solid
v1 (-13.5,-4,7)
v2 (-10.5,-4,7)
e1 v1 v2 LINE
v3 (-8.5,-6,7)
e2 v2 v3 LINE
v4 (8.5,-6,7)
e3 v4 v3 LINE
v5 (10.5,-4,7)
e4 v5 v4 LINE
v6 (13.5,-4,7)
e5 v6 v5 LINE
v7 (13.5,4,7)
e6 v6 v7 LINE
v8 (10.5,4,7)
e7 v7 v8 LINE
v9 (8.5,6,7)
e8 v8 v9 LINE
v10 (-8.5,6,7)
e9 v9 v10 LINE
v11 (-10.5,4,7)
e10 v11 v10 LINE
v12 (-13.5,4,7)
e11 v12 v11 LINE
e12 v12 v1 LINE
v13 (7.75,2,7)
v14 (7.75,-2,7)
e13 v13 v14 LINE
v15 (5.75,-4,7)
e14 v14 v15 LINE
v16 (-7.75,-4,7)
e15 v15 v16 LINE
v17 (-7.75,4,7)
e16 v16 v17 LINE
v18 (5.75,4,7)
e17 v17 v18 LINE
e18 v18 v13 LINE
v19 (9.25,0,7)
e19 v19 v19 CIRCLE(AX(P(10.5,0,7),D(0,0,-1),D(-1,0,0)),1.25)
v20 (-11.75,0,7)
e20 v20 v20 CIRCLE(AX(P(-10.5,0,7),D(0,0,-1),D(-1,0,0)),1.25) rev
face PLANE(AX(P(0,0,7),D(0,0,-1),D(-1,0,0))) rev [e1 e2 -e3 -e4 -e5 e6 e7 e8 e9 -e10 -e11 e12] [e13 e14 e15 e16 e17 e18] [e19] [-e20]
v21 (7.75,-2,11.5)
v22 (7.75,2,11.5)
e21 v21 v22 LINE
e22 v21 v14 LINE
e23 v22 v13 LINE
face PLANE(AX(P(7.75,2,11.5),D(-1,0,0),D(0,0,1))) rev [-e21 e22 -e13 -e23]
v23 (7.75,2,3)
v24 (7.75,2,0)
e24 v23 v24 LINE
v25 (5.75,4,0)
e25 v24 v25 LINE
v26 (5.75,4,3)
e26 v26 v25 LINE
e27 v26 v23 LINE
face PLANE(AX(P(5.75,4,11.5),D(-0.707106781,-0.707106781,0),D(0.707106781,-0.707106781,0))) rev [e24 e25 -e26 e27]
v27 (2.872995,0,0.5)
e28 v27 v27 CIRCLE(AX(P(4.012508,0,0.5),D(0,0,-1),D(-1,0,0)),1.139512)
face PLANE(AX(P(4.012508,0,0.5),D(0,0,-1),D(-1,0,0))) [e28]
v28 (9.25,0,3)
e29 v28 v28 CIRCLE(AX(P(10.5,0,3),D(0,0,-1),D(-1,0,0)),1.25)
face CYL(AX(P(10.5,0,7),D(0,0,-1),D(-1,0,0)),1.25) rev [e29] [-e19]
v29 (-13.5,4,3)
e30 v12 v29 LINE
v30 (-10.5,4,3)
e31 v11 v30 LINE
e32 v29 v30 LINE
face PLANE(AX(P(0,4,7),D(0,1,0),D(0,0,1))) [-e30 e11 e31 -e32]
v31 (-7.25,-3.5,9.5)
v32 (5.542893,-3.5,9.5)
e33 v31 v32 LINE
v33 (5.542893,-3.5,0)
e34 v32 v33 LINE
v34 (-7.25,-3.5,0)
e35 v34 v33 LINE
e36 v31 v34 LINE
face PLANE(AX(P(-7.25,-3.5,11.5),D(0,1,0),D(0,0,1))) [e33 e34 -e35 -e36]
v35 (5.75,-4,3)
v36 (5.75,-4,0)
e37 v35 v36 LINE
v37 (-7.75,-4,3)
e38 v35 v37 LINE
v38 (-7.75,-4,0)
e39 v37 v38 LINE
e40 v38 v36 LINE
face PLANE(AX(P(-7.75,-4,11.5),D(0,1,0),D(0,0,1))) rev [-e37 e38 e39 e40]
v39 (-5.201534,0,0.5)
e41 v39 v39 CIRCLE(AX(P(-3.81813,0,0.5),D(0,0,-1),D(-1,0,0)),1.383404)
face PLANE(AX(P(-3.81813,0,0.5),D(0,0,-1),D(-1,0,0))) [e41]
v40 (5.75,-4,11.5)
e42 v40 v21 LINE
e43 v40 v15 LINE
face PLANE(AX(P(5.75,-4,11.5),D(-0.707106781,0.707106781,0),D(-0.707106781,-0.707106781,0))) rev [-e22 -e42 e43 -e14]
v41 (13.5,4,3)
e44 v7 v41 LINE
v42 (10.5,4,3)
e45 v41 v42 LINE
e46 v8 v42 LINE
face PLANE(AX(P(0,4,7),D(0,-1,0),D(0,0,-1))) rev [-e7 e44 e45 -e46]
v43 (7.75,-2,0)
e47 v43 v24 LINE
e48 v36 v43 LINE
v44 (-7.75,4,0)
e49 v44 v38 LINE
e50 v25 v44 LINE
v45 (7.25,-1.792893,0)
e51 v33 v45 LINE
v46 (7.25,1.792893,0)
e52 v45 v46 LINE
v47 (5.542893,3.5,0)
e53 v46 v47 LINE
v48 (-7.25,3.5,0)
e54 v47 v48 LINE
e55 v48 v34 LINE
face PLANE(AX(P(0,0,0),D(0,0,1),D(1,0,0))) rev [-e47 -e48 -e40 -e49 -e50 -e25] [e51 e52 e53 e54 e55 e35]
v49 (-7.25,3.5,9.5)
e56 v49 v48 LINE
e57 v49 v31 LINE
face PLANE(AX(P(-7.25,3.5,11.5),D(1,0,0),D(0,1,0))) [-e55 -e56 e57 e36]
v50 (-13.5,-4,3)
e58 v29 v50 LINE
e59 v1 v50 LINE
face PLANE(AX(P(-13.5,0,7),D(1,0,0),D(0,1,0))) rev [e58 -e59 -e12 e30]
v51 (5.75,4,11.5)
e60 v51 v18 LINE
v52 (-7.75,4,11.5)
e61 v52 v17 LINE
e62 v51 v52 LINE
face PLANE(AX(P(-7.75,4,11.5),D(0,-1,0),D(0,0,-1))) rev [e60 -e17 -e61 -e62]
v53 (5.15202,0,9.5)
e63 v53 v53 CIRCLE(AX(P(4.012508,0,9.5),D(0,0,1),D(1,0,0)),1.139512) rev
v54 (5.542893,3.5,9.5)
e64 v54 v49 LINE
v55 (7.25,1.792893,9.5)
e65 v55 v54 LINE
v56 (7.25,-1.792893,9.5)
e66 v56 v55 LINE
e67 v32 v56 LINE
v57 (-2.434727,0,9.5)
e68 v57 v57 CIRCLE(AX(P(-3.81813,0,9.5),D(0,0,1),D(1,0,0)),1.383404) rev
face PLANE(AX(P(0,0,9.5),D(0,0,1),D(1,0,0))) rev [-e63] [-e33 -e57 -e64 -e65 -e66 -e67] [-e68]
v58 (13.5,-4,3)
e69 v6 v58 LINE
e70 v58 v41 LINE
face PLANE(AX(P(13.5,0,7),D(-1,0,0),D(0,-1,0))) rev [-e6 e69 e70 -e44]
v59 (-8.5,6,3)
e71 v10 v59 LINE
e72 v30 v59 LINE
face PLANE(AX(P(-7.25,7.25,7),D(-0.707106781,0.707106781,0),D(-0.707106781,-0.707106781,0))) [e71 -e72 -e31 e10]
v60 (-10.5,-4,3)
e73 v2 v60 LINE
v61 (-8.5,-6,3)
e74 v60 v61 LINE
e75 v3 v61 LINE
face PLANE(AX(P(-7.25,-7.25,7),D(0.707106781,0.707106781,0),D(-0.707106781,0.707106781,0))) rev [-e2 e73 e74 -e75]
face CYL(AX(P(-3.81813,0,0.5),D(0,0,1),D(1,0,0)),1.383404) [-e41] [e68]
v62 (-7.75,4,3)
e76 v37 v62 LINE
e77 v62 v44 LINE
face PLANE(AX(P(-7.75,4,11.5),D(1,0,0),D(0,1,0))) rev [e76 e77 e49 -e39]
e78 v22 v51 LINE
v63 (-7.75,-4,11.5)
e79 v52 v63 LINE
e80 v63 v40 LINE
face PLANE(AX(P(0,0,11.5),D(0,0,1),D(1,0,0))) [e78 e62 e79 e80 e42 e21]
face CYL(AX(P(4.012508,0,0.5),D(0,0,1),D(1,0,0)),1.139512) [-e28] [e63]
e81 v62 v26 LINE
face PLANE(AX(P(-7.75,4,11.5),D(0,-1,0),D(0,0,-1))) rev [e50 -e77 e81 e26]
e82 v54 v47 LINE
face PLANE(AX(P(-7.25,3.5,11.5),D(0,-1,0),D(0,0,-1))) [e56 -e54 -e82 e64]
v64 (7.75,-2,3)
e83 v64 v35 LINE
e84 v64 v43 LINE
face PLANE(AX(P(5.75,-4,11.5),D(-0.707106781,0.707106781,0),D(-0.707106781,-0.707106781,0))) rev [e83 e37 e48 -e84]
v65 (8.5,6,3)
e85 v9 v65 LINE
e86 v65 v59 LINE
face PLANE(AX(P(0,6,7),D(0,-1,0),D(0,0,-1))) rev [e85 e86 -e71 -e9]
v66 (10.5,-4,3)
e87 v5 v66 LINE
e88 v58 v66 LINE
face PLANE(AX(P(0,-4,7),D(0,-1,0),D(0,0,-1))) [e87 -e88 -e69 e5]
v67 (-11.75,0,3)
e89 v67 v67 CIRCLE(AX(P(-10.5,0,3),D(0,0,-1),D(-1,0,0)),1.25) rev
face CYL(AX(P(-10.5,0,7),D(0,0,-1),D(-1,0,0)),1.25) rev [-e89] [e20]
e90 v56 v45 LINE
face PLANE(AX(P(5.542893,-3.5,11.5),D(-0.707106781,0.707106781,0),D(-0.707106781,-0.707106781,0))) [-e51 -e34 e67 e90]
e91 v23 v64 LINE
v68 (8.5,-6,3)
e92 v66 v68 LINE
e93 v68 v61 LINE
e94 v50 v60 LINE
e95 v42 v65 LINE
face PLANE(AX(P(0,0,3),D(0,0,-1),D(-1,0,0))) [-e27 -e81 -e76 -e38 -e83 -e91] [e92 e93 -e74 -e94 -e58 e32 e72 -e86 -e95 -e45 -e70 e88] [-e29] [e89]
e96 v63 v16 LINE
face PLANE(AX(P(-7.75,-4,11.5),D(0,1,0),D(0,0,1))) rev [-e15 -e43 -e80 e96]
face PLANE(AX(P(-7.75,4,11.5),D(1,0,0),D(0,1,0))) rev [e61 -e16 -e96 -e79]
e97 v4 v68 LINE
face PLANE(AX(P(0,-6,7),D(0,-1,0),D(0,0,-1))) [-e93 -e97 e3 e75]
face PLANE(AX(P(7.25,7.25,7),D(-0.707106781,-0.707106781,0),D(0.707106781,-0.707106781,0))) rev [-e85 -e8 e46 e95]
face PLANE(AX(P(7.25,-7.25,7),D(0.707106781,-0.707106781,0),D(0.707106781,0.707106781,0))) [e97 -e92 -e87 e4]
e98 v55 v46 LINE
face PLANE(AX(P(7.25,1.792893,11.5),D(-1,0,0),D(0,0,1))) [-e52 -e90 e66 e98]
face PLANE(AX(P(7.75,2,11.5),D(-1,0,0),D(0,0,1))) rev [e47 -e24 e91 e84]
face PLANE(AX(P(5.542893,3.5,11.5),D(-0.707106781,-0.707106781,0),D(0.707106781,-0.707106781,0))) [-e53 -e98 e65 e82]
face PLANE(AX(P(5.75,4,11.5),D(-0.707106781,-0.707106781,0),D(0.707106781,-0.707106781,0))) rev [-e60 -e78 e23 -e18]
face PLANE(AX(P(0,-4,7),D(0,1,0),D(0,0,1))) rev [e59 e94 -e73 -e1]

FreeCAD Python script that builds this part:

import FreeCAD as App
import Part
import Sketcher


def add_polygon(sketch, points):
    """Adds a closed chain of lines whose ends are joined by coincident constraints."""
    first, n = sketch.GeometryCount, len(points)
    for a, b in zip(points, points[1:] + points[:1]):
        sketch.addGeometry(Part.LineSegment(App.Vector(*a, 0), App.Vector(*b, 0)), False)
    for i in range(n):
        sketch.addConstraint(Sketcher.Constraint("Coincident", first + i, 2, first + (i + 1) % n, 1))

doc = App.newDocument("Part")
body = doc.addObject("PartDesign::Body", "Body")

sketch1 = body.newObject("Sketcher::SketchObject", "Sketch")
sketch1.AttachmentSupport = (doc.getObject("XY_Plane"), [""])
sketch1.MapMode = "FlatFace"
add_polygon(sketch1, [(5.75, -4), (7.75, -2), (7.75, 2), (5.75, 4), (-7.75, 4), (-7.75, -4)])
add_polygon(sketch1, [(-7.25, -3.5), (-7.25, 3.5), (5.542893, 3.5), (7.25, 1.792893), (7.25, -1.792893), (5.542893, -3.5)])
sketch1.addConstraint(Sketcher.Constraint("Vertical", 1))
sketch1.addConstraint(Sketcher.Constraint("Horizontal", 3))
sketch1.addConstraint(Sketcher.Constraint("Vertical", 4))
sketch1.addConstraint(Sketcher.Constraint("Horizontal", 5))
sketch1.addConstraint(Sketcher.Constraint("Vertical", 6))
sketch1.addConstraint(Sketcher.Constraint("Horizontal", 7))
sketch1.addConstraint(Sketcher.Constraint("Vertical", 9))
sketch1.addConstraint(Sketcher.Constraint("Horizontal", 11))
sketch1.addConstraint(Sketcher.Constraint("Symmetric", 2, 2, 5, 2, -1))
sketch1.addConstraint(Sketcher.Constraint("Symmetric", 7, 2, 10, 2, -1))
sketch1.addConstraint(Sketcher.Constraint("Perpendicular", 0, 2))
sketch1.addConstraint(Sketcher.Constraint("Parallel", 2, 8))
sketch1.addConstraint(Sketcher.Constraint("Perpendicular", 8, 10))
sketch1.addConstraint(Sketcher.Constraint("Equal", 0, 2))
sketch1.addConstraint(Sketcher.Constraint("DistanceY", 1, 1, 1, 2, 4.0))
sketch1.addConstraint(Sketcher.Constraint("DistanceY", 4, 2, 4, 1, 8.0))
sketch1.addConstraint(Sketcher.Constraint("DistanceY", 6, 1, 6, 2, 7.0))
sketch1.addConstraint(Sketcher.Constraint("DistanceX", 3, 2, 3, 1, 13.5))
sketch1.addConstraint(Sketcher.Constraint("DistanceX", 6, 2, 2, 2, 13.0))
sketch1.addConstraint(Sketcher.Constraint("DistanceX", 8, 2, 1, 2, 0.5))
sketch1.addConstraint(Sketcher.Constraint("DistanceX", -1, 1, 0, 2, 7.75))
sketch1.addConstraint(Sketcher.Constraint("DistanceX", 7, 1, 7, 2, 12.792893))
pad1 = body.newObject("PartDesign::Pad", "Pad")
pad1.Profile = sketch1
pad1.Length = 11.5

sketch2 = body.newObject("Sketcher::SketchObject", "Sketch001")
sketch2.AttachmentSupport = (doc.getObject("XY_Plane"), [""])
sketch2.MapMode = "FlatFace"
sketch2.AttachmentOffset = App.Placement(App.Vector(0, 0, 3), App.Rotation())
add_polygon(sketch2, [(13.5, 4), (13.5, -4), (10.5, -4), (8.5, -6), (-8.5, -6), (-10.5, -4), (-13.5, -4), (-13.5, 4), (-10.5, 4), (-8.5, 6), (8.5, 6), (10.5, 4)])
sketch2.addGeometry(Part.Circle(App.Vector(-10.5, 0, 0), App.Vector(0, 0, 1), 1.25), False)
add_polygon(sketch2, [(5.75, -4), (7.75, -2), (7.75, 2), (5.75, 4), (-7.75, 4), (-7.75, -4)])
sketch2.addGeometry(Part.Circle(App.Vector(10.5, 0, 0), App.Vector(0, 0, 1), 1.25), False)
sketch2.addConstraint(Sketcher.Constraint("Vertical", 0))
sketch2.addConstraint(Sketcher.Constraint("Horizontal", 1))
sketch2.addConstraint(Sketcher.Constraint("Horizontal", 3))
sketch2.addConstraint(Sketcher.Constraint("Horizontal", 5))
sketch2.addConstraint(Sketcher.Constraint("Vertical", 6))
sketch2.addConstraint(Sketcher.Constraint("Horizontal", 7))
sketch2.addConstraint(Sketcher.Constraint("Horizontal", 9))
sketch2.addConstraint(Sketcher.Constraint("Horizontal", 11))
sketch2.addConstraint(Sketcher.Constraint("Vertical", 14))
sketch2.addConstraint(Sketcher.Constraint("Horizontal", 16))
sketch2.addConstraint(Sketcher.Constraint("Vertical", 17))
sketch2.addConstraint(Sketcher.Constraint("Horizontal", 18))
sketch2.addConstraint(Sketcher.Constraint("Equal", 12, 19))
sketch2.addConstraint(Sketcher.Constraint("Symmetric", 12, 3, 19, 3, -1, 1))
sketch2.addConstraint(Sketcher.Constraint("Symmetric", 0, 2, 6, 2, -1, 1))
sketch2.addConstraint(Sketcher.Constraint("Symmetric", 2, 2, 8, 2, -1, 1))
sketch2.addConstraint(Sketcher.Constraint("Symmetric", 4, 2, 10, 2, -1, 1))
sketch2.addConstraint(Sketcher.Constraint("Symmetric", 1, 2, 4, 2, -2))
sketch2.addConstraint(Sketcher.Constraint("Symmetric", 15, 2, 18, 2, -1))
sketch2.addConstraint(Sketcher.Constraint("PointOnObject", 12, 3, -1))
sketch2.addConstraint(Sketcher.Constraint("Perpendicular", 2, 4))
sketch2.addConstraint(Sketcher.Constraint("Perpendicular", 4, 8))
sketch2.addConstraint(Sketcher.Constraint("Perpendicular", 8, 10))
sketch2.addConstraint(Sketcher.Constraint("Perpendicular", 10, 13))
sketch2.addConstraint(Sketcher.Constraint("Perpendicular", 13, 15))
sketch2.addConstraint(Sketcher.Constraint("Horizontal", 11, 2, 15, 2))
sketch2.addConstraint(Sketcher.Constraint("Vertical", 19, 3, 1, 2))
sketch2.addConstraint(Sketcher.Constraint("Vertical", 3, 2, 8, 2))
sketch2.addConstraint(Sketcher.Constraint("Equal", 10, 13))
sketch2.addConstraint(Sketcher.Constraint("Diameter", 12, 2.5))
sketch2.addConstraint(Sketcher.Constraint("DistanceX", 1, 2, 1, 1, 3.0))
sketch2.addConstraint(Sketcher.Constraint("DistanceX", 3, 2, 3, 1, 17.0))
sketch2.addConstraint(Sketcher.Constraint("DistanceY", 0, 2, 0, 1, 8.0))
sketch2.addConstraint(Sketcher.Constraint("DistanceY", 14, 1, 14, 2, 4.0))
sketch2.addConstraint(Sketcher.Constraint("DistanceX", 16, 2, 16, 1, 13.5))
sketch2.addConstraint(Sketcher.Constraint("DistanceX", -1, 1, 13, 2, 7.75))
pad2 = body.newObject("PartDesign::Pad", "Pad001")
pad2.Profile = sketch2
pad2.Length = 4

sketch3 = body.newObject("Sketcher::SketchObject", "Sketch002")
sketch3.AttachmentSupport = (doc.getObject("XY_Plane"), [""])
sketch3.MapMode = "FlatFace"
sketch3.AttachmentOffset = App.Placement(App.Vector(0, 0, 11.5), App.Rotation())
add_polygon(sketch3, [(-7.25, 3.5), (-7.25, -3.5), (5.542893, -3.5), (7.25, -1.792893), (7.25, 1.792893), (5.542893, 3.5)])
sketch3.addConstraint(Sketcher.Constraint("Vertical", 0))
sketch3.addConstraint(Sketcher.Constraint("Horizontal", 1))
sketch3.addConstraint(Sketcher.Constraint("Vertical", 3))
sketch3.addConstraint(Sketcher.Constraint("Horizontal", 5))
sketch3.addConstraint(Sketcher.Constraint("Symmetric", 1, 2, 4, 2, -1))
sketch3.addConstraint(Sketcher.Constraint("Perpendicular", 2, 4))
sketch3.addConstraint(Sketcher.Constraint("Equal", 2, 4))
sketch3.addConstraint(Sketcher.Constraint("DistanceY", 0, 2, 0, 1, 7.0))
sketch3.addConstraint(Sketcher.Constraint("DistanceX", 0, 2, 2, 2, 14.5))
sketch3.addConstraint(Sketcher.Constraint("DistanceX", 0, 2, -1, 1, 7.25))
sketch3.addConstraint(Sketcher.Constraint("DistanceX", 1, 1, 1, 2, 12.792893))
pad3 = body.newObject("PartDesign::Pad", "Pad002")
pad3.Profile = sketch3
pad3.Length = 2
pad3.Reversed = True

sketch4 = body.newObject("Sketcher::SketchObject", "Sketch003")
sketch4.AttachmentSupport = (doc.getObject("XY_Plane"), [""])
sketch4.MapMode = "FlatFace"
sketch4.AttachmentOffset = App.Placement(App.Vector(0, 0, 9.5), App.Rotation())
sketch4.addGeometry(Part.Circle(App.Vector(4.012508, 0, 0), App.Vector(0, 0, 1), 1.139512), False)
sketch4.addGeometry(Part.Circle(App.Vector(-3.81813, 0, 0), App.Vector(0, 0, 1), 1.383404), False)
sketch4.addConstraint(Sketcher.Constraint("PointOnObject", 0, 3, -1))
sketch4.addConstraint(Sketcher.Constraint("PointOnObject", 1, 3, -1))
sketch4.addConstraint(Sketcher.Constraint("Diameter", 0, 2.279025))
sketch4.addConstraint(Sketcher.Constraint("Diameter", 1, 2.766807))
sketch4.addConstraint(Sketcher.Constraint("DistanceX", 1, 3, -1, 1, 3.81813))
sketch4.addConstraint(Sketcher.Constraint("DistanceX", 1, 3, 0, 3, 7.830638))
pad4 = body.newObject("PartDesign::Pad", "Pad003")
pad4.Profile = sketch4
pad4.Length = 9
pad4.Reversed = True

doc.recompute()
